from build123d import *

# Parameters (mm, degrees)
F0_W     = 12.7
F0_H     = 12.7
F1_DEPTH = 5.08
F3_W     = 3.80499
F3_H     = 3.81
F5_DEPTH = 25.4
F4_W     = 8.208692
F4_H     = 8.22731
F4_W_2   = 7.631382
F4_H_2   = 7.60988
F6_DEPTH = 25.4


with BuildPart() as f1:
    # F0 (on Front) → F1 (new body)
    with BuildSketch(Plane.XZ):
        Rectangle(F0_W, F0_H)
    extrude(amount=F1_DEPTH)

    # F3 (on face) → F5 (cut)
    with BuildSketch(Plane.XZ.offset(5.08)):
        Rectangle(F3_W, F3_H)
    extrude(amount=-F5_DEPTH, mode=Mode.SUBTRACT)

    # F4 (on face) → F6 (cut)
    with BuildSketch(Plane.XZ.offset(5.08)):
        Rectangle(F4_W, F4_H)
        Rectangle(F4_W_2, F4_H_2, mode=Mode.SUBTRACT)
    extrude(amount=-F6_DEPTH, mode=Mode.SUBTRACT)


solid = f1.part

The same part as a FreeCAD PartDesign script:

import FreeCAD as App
import Part
import Sketcher

V = App.Vector
Q = App.Units.Quantity

doc = App.newDocument("Part")
body = doc.addObject("PartDesign::Body", "Body")
body.AllowCompound = True

sketch1 = doc.addObject("Sketcher::SketchObject", "Sketch")
body.addObject(sketch1)
sketch1.AttachmentSupport = (doc.XZ_Plane, [""])
sketch1.MapMode = "FlatFace"
sketch1.addGeometry(Part.LineSegment(V(-6, 6, 0), V(-6, -6, 0)), False)
sketch1.addGeometry(Part.LineSegment(V(-6, -6, 0), V(6, -6, 0)), False)
sketch1.addGeometry(Part.LineSegment(V(6, -6, 0), V(6, 6, 0)), False)
sketch1.addGeometry(Part.LineSegment(V(6, 6, 0), V(-6, 6, 0)), False)
sketch1.addConstraint(Sketcher.Constraint("Coincident", 0, 2, 1, 1))
sketch1.addConstraint(Sketcher.Constraint("Coincident", 1, 2, 2, 1))
sketch1.addConstraint(Sketcher.Constraint("Coincident", 2, 2, 3, 1))
sketch1.addConstraint(Sketcher.Constraint("Coincident", 3, 2, 0, 1))
sketch1.addConstraint(Sketcher.Constraint("Vertical", 0))
sketch1.addConstraint(Sketcher.Constraint("Horizontal", 1))
sketch1.addConstraint(Sketcher.Constraint("Vertical", 2))
sketch1.addConstraint(Sketcher.Constraint("Horizontal", 3))
sketch1.addConstraint(Sketcher.Constraint("Symmetric", 0, 2, 2, 2, -1, 1))
sketch1.addConstraint(Sketcher.Constraint("Equal", 3, 0))
sketch1.addConstraint(Sketcher.Constraint("DistanceX", 1, 1, 1, 2, Q("0.5 in")))
pad1 = doc.addObject("PartDesign::Pad", "Pad")
body.addObject(pad1)
pad1.Profile = sketch1
pad1.Length = Q("0.2 in")

sketch2 = doc.addObject("Sketcher::SketchObject", "Sketch001")
body.addObject(sketch2)
sketch2.AttachmentSupport = (doc.XZ_Plane, [""])
sketch2.MapMode = "FlatFace"
sketch2.AttachmentOffset = App.Placement(V(0, 0, 0.2 * 25.4), App.Rotation())
sketch2.addGeometry(Part.LineSegment(V(-1.9, 1.9, 0), V(-1.9, -1.9, 0)), False)
sketch2.addGeometry(Part.LineSegment(V(-1.9, -1.9, 0), V(1.9, -1.9, 0)), False)
sketch2.addGeometry(Part.LineSegment(V(1.9, -1.9, 0), V(1.9, 1.9, 0)), False)
sketch2.addGeometry(Part.LineSegment(V(1.9, 1.9, 0), V(-1.9, 1.9, 0)), False)
sketch2.addConstraint(Sketcher.Constraint("Coincident", 0, 2, 1, 1))
sketch2.addConstraint(Sketcher.Constraint("Coincident", 1, 2, 2, 1))
sketch2.addConstraint(Sketcher.Constraint("Coincident", 2, 2, 3, 1))
sketch2.addConstraint(Sketcher.Constraint("Coincident", 3, 2, 0, 1))
sketch2.addConstraint(Sketcher.Constraint("Vertical", 0))
sketch2.addConstraint(Sketcher.Constraint("Horizontal", 1))
sketch2.addConstraint(Sketcher.Constraint("Vertical", 2))
sketch2.addConstraint(Sketcher.Constraint("Horizontal", 3))
sketch2.addConstraint(Sketcher.Constraint("Symmetric", 0, 2, 2, 2, -1, 1))
sketch2.addConstraint(Sketcher.Constraint("DistanceY", 0, 2, 0, 1, Q("0.15 in")))
sketch2.addConstraint(Sketcher.Constraint("DistanceX", 1, 1, 1, 2, 3.80499))
pocket1 = doc.addObject("PartDesign::Pocket", "Pocket")
body.addObject(pocket1)
pocket1.Profile = sketch2
pocket1.Length = Q("1 in")

sketch3 = doc.addObject("Sketcher::SketchObject", "Sketch002")
body.addObject(sketch3)
sketch3.AttachmentSupport = (doc.XZ_Plane, [""])
sketch3.MapMode = "FlatFace"
sketch3.AttachmentOffset = App.Placement(V(0, 0, 0.2 * 25.4), App.Rotation())
sketch3.addGeometry(Part.LineSegment(V(-4, 4, 0), V(-4, -4, 0)), False)
sketch3.addGeometry(Part.LineSegment(V(-4, -4, 0), V(4, -4, 0)), False)
sketch3.addGeometry(Part.LineSegment(V(4, -4, 0), V(4, 4, 0)), False)
sketch3.addGeometry(Part.LineSegment(V(4, 4, 0), V(-4, 4, 0)), False)
sketch3.addGeometry(Part.LineSegment(V(4, -4, 0), V(-4, -4, 0)), False)
sketch3.addGeometry(Part.LineSegment(V(-4, -4, 0), V(-4, 4, 0)), False)
sketch3.addGeometry(Part.LineSegment(V(-4, 4, 0), V(4, 4, 0)), False)
sketch3.addGeometry(Part.LineSegment(V(4, 4, 0), V(4, -4, 0)), False)
sketch3.addConstraint(Sketcher.Constraint("Coincident", 0, 2, 1, 1))
sketch3.addConstraint(Sketcher.Constraint("Coincident", 1, 2, 2, 1))
sketch3.addConstraint(Sketcher.Constraint("Coincident", 2, 2, 3, 1))
sketch3.addConstraint(Sketcher.Constraint("Coincident", 3, 2, 0, 1))
sketch3.addConstraint(Sketcher.Constraint("Coincident", 4, 2, 5, 1))
sketch3.addConstraint(Sketcher.Constraint("Coincident", 5, 2, 6, 1))
sketch3.addConstraint(Sketcher.Constraint("Coincident", 6, 2, 7, 1))
sketch3.addConstraint(Sketcher.Constraint("Coincident", 7, 2, 4, 1))
sketch3.addConstraint(Sketcher.Constraint("Vertical", 0))
sketch3.addConstraint(Sketcher.Constraint("Horizontal", 1))
sketch3.addConstraint(Sketcher.Constraint("Vertical", 2))
sketch3.addConstraint(Sketcher.Constraint("Horizontal", 3))
sketch3.addConstraint(Sketcher.Constraint("Horizontal", 4))
sketch3.addConstraint(Sketcher.Constraint("Vertical", 5))
sketch3.addConstraint(Sketcher.Constraint("Horizontal", 6))
sketch3.addConstraint(Sketcher.Constraint("Vertical", 7))
sketch3.addConstraint(Sketcher.Constraint("Symmetric", 0, 2, 2, 2, -1, 1))
sketch3.addConstraint(Sketcher.Constraint("Symmetric", 4, 2, 6, 2, -1, 1))
sketch3.addConstraint(Sketcher.Constraint("DistanceX", 1, 1, 1, 2, 8.208692))
sketch3.addConstraint(Sketcher.Constraint("DistanceY", 0, 2, 0, 1, 8.22731))
sketch3.addConstraint(Sketcher.Constraint("DistanceY", 5, 1, 5, 2, 7.60988))
sketch3.addConstraint(Sketcher.Constraint("DistanceX", 4, 2, 4, 1, 7.631382))
pocket2 = doc.addObject("PartDesign::Pocket", "Pocket001")
body.addObject(pocket2)
pocket2.Profile = sketch3
pocket2.Length = Q("1 in")

doc.recompute()
